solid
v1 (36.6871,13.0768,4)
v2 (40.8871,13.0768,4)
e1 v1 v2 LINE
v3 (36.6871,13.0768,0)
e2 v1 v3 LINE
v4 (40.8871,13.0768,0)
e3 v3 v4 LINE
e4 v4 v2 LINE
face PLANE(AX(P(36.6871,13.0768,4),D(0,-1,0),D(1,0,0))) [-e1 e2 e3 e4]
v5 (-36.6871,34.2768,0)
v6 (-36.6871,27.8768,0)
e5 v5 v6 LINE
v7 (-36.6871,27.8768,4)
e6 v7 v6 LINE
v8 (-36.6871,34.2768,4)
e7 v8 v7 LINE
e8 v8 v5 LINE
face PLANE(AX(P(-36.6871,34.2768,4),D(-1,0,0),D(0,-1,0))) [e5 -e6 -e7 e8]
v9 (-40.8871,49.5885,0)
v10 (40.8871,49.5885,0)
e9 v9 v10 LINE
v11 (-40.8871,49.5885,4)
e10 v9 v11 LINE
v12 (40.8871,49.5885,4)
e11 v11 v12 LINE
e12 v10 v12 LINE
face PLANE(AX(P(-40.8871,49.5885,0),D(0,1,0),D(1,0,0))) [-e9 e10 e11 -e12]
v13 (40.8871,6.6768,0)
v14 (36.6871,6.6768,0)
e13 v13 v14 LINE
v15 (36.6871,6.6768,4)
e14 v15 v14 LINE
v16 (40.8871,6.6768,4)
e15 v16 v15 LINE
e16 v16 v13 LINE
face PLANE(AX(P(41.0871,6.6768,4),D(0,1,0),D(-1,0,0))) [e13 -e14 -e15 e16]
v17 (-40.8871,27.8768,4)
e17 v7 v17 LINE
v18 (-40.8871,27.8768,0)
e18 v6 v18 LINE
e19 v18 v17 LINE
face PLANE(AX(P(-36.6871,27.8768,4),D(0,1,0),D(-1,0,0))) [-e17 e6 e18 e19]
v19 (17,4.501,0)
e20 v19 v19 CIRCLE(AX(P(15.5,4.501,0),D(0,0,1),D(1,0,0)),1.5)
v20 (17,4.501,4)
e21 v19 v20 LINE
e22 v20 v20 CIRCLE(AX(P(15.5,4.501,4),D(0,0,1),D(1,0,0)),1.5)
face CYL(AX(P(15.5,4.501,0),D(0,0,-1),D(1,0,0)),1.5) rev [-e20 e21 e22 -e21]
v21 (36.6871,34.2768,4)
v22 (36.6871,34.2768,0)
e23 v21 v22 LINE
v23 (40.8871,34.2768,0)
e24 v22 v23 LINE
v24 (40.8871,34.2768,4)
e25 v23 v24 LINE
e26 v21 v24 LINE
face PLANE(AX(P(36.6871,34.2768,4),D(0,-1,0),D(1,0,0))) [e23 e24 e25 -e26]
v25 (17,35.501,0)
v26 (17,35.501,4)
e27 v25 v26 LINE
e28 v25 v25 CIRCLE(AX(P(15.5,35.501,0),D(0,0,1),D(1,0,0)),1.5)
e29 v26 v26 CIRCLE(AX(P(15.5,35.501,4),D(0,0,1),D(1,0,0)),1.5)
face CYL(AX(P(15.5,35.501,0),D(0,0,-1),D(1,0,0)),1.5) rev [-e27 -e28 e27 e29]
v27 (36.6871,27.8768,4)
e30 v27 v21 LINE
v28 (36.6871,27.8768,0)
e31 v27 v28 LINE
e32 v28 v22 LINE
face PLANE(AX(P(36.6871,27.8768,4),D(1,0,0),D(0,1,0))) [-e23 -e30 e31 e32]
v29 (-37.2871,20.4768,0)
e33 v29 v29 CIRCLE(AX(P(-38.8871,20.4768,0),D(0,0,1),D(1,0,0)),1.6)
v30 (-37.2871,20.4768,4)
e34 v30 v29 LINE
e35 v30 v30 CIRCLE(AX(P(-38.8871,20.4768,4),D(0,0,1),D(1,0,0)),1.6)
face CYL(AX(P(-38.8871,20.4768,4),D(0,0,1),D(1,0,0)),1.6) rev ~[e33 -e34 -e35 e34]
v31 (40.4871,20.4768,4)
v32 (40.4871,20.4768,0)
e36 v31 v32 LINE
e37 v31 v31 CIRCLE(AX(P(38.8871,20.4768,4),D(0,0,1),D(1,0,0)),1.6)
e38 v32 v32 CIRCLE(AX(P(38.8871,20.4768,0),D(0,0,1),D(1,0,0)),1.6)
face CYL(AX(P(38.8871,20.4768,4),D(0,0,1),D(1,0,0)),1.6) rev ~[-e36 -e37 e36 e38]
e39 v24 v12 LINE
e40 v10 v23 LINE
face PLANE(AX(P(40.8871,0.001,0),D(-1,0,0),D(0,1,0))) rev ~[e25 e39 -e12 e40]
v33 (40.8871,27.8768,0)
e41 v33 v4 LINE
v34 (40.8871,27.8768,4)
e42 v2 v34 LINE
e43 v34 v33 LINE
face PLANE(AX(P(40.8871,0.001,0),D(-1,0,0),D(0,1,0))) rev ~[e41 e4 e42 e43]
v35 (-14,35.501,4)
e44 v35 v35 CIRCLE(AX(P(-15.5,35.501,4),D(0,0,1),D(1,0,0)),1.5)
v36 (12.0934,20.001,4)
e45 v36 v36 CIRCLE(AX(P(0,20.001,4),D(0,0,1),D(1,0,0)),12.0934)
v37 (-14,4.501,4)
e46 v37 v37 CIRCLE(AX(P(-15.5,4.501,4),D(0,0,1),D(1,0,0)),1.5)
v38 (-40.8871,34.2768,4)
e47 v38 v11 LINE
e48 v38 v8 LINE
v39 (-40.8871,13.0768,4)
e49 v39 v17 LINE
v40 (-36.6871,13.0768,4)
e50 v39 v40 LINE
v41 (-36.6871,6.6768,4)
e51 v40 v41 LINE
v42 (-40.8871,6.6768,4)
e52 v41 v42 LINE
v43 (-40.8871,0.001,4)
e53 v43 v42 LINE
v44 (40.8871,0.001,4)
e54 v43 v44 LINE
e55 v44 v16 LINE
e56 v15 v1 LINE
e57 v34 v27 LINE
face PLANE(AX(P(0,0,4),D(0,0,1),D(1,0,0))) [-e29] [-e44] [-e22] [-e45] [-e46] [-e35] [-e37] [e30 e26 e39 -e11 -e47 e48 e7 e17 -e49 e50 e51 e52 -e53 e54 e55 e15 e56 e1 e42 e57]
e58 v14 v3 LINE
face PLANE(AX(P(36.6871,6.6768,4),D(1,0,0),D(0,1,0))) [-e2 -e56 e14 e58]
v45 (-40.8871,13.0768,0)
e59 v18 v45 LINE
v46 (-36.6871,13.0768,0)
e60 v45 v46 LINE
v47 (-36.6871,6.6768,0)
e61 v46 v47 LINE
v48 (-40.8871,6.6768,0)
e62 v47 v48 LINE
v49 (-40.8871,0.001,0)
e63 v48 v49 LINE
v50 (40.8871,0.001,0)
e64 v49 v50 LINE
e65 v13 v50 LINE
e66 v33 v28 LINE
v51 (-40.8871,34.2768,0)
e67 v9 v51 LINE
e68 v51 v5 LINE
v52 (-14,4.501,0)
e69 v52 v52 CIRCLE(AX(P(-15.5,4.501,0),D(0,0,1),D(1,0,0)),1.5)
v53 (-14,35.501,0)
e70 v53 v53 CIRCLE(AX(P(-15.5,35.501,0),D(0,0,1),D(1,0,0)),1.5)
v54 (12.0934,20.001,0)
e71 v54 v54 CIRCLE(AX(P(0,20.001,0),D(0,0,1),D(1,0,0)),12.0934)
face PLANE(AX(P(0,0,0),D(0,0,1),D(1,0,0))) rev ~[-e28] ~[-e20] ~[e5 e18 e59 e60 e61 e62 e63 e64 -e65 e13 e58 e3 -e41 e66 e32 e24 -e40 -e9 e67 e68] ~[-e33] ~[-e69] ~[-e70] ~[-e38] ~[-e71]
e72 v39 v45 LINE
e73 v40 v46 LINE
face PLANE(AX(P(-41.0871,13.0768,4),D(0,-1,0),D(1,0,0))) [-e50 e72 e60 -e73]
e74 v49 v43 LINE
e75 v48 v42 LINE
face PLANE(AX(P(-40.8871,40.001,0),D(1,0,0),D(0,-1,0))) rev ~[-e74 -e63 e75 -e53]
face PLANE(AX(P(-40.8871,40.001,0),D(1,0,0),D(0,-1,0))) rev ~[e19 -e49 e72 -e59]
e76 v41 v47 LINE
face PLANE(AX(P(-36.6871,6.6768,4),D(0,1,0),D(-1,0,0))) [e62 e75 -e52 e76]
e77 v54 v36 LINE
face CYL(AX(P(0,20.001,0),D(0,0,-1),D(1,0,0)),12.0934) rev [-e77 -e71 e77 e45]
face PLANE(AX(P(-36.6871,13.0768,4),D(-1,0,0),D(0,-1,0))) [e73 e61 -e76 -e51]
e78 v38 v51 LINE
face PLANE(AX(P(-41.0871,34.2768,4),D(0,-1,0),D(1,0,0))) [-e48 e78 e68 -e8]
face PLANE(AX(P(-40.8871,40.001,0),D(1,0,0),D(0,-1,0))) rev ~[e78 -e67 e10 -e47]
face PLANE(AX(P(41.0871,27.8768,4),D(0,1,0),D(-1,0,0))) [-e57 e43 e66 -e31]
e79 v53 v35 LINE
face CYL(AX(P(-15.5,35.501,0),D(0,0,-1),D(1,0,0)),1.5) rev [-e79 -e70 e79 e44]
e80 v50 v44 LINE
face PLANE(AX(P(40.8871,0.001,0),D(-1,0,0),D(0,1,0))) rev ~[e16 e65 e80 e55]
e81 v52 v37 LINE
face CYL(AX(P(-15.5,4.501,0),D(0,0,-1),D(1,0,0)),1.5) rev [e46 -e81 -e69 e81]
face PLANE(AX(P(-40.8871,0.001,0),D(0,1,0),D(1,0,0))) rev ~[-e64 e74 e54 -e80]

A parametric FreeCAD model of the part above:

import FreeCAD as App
import Part
import Sketcher
Q = App.Units.Quantity

doc = App.newDocument("Part")
body = doc.addObject("PartDesign::Body", "Body")

# Sketch on XY plane
sketch1 = body.newObject("Sketcher::SketchObject", "Sketch")
sketch1.AttachmentSupport = (doc.getObject("XY_Plane"), [""])
sketch1.MapMode = "FlatFace"
sketch1.addGeometry([
    Part.LineSegment(App.Vector(-40.9, 0, 0), App.Vector(40.9, 0, 0)),  # 0
    Part.LineSegment(App.Vector(40.9, 0, 0), App.Vector(40.9, 49.6, 0)),  # 1
    Part.LineSegment(App.Vector(40.9, 49.6, 0), App.Vector(-40.9, 49.6, 0)),  # 2
    Part.LineSegment(App.Vector(-40.9, 49.6, 0), App.Vector(-40.9, 0, 0)),  # 3
    Part.Circle(App.Vector(-15.5, 4.5, 0), App.Vector(0, 0, 1), 1.5),  # 4
    Part.Circle(App.Vector(15.5, 4.5, 0), App.Vector(0, 0, 1), 1.5),  # 5
    Part.Circle(App.Vector(0, 20, 0), App.Vector(0, 0, 1), 12.1),  # 6
    Part.Circle(App.Vector(-15.5, 35.5, 0), App.Vector(0, 0, 1), 1.5),  # 7
    Part.Circle(App.Vector(15.5, 35.5, 0), App.Vector(0, 0, 1), 1.5),  # 8
], False)
sketch1.addConstraint([
    Sketcher.Constraint("Coincident", 0, 2, 1, 1),
    Sketcher.Constraint("Coincident", 1, 2, 2, 1),
    Sketcher.Constraint("Coincident", 2, 2, 3, 1),
    Sketcher.Constraint("Coincident", 3, 2, 0, 1),
    Sketcher.Constraint("Horizontal", 0),
    Sketcher.Constraint("Vertical", 1),
    Sketcher.Constraint("Horizontal", 2),
    Sketcher.Constraint("Vertical", 3),
    Sketcher.Constraint("Equal", 4, 5),
    Sketcher.Constraint("Equal", 5, 7),
    Sketcher.Constraint("Equal", 7, 8),
    Sketcher.Constraint("Symmetric", 4, 3, 5, 3, -2),
    Sketcher.Constraint("Symmetric", 7, 3, 8, 3, -2),
    Sketcher.Constraint("PointOnObject", 6, 3, -2),
    Sketcher.Constraint("Vertical", 4, 3, 7, 3),
    Sketcher.Constraint("Diameter", 4, Q("3 mm")),
    Sketcher.Constraint("DistanceX", 4, 3, 5, 3, Q("31 mm")),
    Sketcher.Constraint("DistanceY", 4, 3, 7, 3, Q("31 mm")),
    Sketcher.Constraint("DistanceY", 0, 2, 6, 3, Q("20 mm")),
    Sketcher.Constraint("Diameter", 6, Q("24.1868 mm")),
    Sketcher.Constraint("DistanceY", 4, 3, 6, 3, Q("15.5 mm")),
    Sketcher.Constraint("DistanceX", 0, 1, 0, 2, Q("81.7742 mm")),
    Sketcher.Constraint("DistanceY", 1, 1, 1, 2, Q("49.5875 mm")),
    Sketcher.Constraint("DistanceY", -1, 1, 4, 3, Q("4.501 mm")),
    Sketcher.Constraint("DistanceX", -1, 1, 0, 2, Q("40.887 mm")),
])
pad1 = body.newObject("PartDesign::Pad", "Pad")
pad1.Profile = sketch1
pad1.Length = 4

# Sketch on XY plane
sketch2 = body.newObject("Sketcher::SketchObject", "Sketch001")
sketch2.AttachmentSupport = (doc.getObject("XY_Plane"), [""])
sketch2.MapMode = "FlatFace"
sketch2.AttachmentOffset = App.Placement(App.Vector(0, 0, 4), App.Rotation())
sketch2.addGeometry([
    Part.Circle(App.Vector(-38.9, 20.5, 0), App.Vector(0, 0, 1), 1.6),  # 0
    Part.Circle(App.Vector(38.9, 20.5, 0), App.Vector(0, 0, 1), 1.6),  # 1
    Part.LineSegment(App.Vector(-36.7, 27.9, 0), App.Vector(-36.7, 34.3, 0)),  # 2
    Part.LineSegment(App.Vector(-36.7, 34.3, 0), App.Vector(-41.1, 34.3, 0)),  # 3
    Part.LineSegment(App.Vector(-41.1, 34.3, 0), App.Vector(-41.1, 27.9, 0)),  # 4
    Part.LineSegment(App.Vector(-41.1, 27.9, 0), App.Vector(-36.7, 27.9, 0)),  # 5
    Part.LineSegment(App.Vector(-36.7, 6.7, 0), App.Vector(-36.7, 13.1, 0)),  # 6
    Part.LineSegment(App.Vector(-36.7, 13.1, 0), App.Vector(-41.1, 13.1, 0)),  # 7
    Part.LineSegment(App.Vector(-41.1, 13.1, 0), App.Vector(-41.1, 6.7, 0)),  # 8
    Part.LineSegment(App.Vector(-41.1, 6.7, 0), App.Vector(-36.7, 6.7, 0)),  # 9
    Part.LineSegment(App.Vector(41.1, 27.9, 0), App.Vector(41.1, 34.3, 0)),  # 10
    Part.LineSegment(App.Vector(41.1, 34.3, 0), App.Vector(36.7, 34.3, 0)),  # 11
    Part.LineSegment(App.Vector(36.7, 34.3, 0), App.Vector(36.7, 27.9, 0)),  # 12
    Part.LineSegment(App.Vector(36.7, 27.9, 0), App.Vector(41.1, 27.9, 0)),  # 13
    Part.LineSegment(App.Vector(41.1, 6.7, 0), App.Vector(41.1, 13.1, 0)),  # 14
    Part.LineSegment(App.Vector(41.1, 13.1, 0), App.Vector(36.7, 13.1, 0)),  # 15
    Part.LineSegment(App.Vector(36.7, 13.1, 0), App.Vector(36.7, 6.7, 0)),  # 16
    Part.LineSegment(App.Vector(36.7, 6.7, 0), App.Vector(41.1, 6.7, 0)),  # 17
], False)
sketch2.addConstraint([
    Sketcher.Constraint("Coincident", 2, 2, 3, 1),
    Sketcher.Constraint("Coincident", 3, 2, 4, 1),
    Sketcher.Constraint("Coincident", 4, 2, 5, 1),
    Sketcher.Constraint("Coincident", 5, 2, 2, 1),
    Sketcher.Constraint("Coincident", 6, 2, 7, 1),
    Sketcher.Constraint("Coincident", 7, 2, 8, 1),
    Sketcher.Constraint("Coincident", 8, 2, 9, 1),
    Sketcher.Constraint("Coincident", 9, 2, 6, 1),
    Sketcher.Constraint("Coincident", 10, 2, 11, 1),
    Sketcher.Constraint("Coincident", 11, 2, 12, 1),
    Sketcher.Constraint("Coincident", 12, 2, 13, 1),
    Sketcher.Constraint("Coincident", 13, 2, 10, 1),
    Sketcher.Constraint("Coincident", 14, 2, 15, 1),
    Sketcher.Constraint("Coincident", 15, 2, 16, 1),
    Sketcher.Constraint("Coincident", 16, 2, 17, 1),
    Sketcher.Constraint("Coincident", 17, 2, 14, 1),
    Sketcher.Constraint("Vertical", 2),
    Sketcher.Constraint("Horizontal", 3),
    Sketcher.Constraint("Vertical", 4),
    Sketcher.Constraint("Horizontal", 5),
    Sketcher.Constraint("Vertical", 6),
    Sketcher.Constraint("Horizontal", 7),
    Sketcher.Constraint("Vertical", 8),
    Sketcher.Constraint("Horizontal", 9),
    Sketcher.Constraint("Vertical", 10),
    Sketcher.Constraint("Horizontal", 11),
    Sketcher.Constraint("Vertical", 12),
    Sketcher.Constraint("Horizontal", 13),
    Sketcher.Constraint("Vertical", 14),
    Sketcher.Constraint("Horizontal", 15),
    Sketcher.Constraint("Vertical", 16),
    Sketcher.Constraint("Horizontal", 17),
    Sketcher.Constraint("Equal", 0, 1),
    Sketcher.Constraint("Symmetric", 0, 3, 1, 3, -2),
    Sketcher.Constraint("Symmetric", 3, 2, 10, 2, -2),
    Sketcher.Constraint("Symmetric", 5, 2, 12, 2, -2),
    Sketcher.Constraint("Symmetric", 7, 2, 14, 2, -2),
    Sketcher.Constraint("Symmetric", 9, 2, 16, 2, -2),
    Sketcher.Constraint("Vertical", 5, 2, 6, 2),
    Sketcher.Constraint("Vertical", 4, 2, 7, 2),
    Sketcher.Constraint("Equal", 4, 6),
    Sketcher.Constraint("Diameter", 0, Q("3.2 mm")),
    Sketcher.Constraint("DistanceX", 3, 2, 3, 1, Q("4.4 mm")),
    Sketcher.Constraint("DistanceY", 2, 1, 2, 2, Q("6.4 mm")),
    Sketcher.Constraint("DistanceX", 0, 3, 2, 2, Q("2.2 mm")),
    Sketcher.Constraint("DistanceY", 0, 3, 2, 2, Q("13.8 mm")),
    Sketcher.Constraint("DistanceY", 6, 2, 0, 3, Q("7.4 mm")),
    Sketcher.Constraint("DistanceX", 0, 3, -1, 1, Q("38.887 mm")),
    Sketcher.Constraint("DistanceY", -1, 1, 0, 3, Q("20.4768 mm")),
])
pocket1 = body.newObject("PartDesign::Pocket", "Pocket")
pocket1.Profile = sketch2
pocket1.Type = "ThroughAll"

doc.recompute()
